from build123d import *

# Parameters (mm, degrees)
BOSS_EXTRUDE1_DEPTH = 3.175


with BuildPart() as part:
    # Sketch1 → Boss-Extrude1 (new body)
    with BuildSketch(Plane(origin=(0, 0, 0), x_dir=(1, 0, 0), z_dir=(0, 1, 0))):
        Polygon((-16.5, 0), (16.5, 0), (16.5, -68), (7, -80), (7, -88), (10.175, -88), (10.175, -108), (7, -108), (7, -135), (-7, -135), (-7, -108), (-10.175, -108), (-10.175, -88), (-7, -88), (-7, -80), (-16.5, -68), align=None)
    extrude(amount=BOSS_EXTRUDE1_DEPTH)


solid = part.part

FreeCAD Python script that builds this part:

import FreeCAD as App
import Part
import Sketcher
Q = App.Units.Quantity


def add_polygon(sketch, points):
    """Adds a closed chain of lines whose ends are joined by coincident constraints."""
    first, n = sketch.GeometryCount, len(points)
    for a, b in zip(points, points[1:] + points[:1]):
        sketch.addGeometry(Part.LineSegment(App.Vector(*a, 0), App.Vector(*b, 0)), False)
    for i in range(n):
        sketch.addConstraint(Sketcher.Constraint("Coincident", first + i, 2, first + (i + 1) % n, 1))

doc = App.newDocument("Part")
params = doc.addObject("Spreadsheet::Sheet", "Params")
for row, (alias, value) in enumerate([
    ("sketch1_width", "33 mm"),
    ("sketch1_width2", "14 mm"),
    ("sketch1_height", "68 mm"),
    ("sketch1_height2", "8 mm"),
    ("sketch1_height3", "20 mm"),
    ("pad1_length", "3.175 mm"),
], start=1):
    params.set(f"A{row}", alias)
    params.set(f"B{row}", "=" + value)
    params.setAlias(f"B{row}", alias)

body = doc.addObject("PartDesign::Body", "Body")

# Sketch on XZ plane
sketch1 = body.newObject("Sketcher::SketchObject", "Sketch")
sketch1.AttachmentSupport = (doc.getObject("XZ_Plane"), [""])
sketch1.MapMode = "FlatFace"
add_polygon(sketch1, [(16.5, 0), (-16.5, 0), (-16.5, 68), (-7, 80), (-7, 88), (-10.175, 88), (-10.175, 108), (-7, 108), (-7, 135), (7, 135), (7, 108), (10.175, 108), (10.175, 88), (7, 88), (7, 80), (16.5, 68)])  # lines 0-15
sketch1.addConstraint([
    Sketcher.Constraint("Horizontal", 0),
    Sketcher.Constraint("Vertical", 1),
    Sketcher.Constraint("Vertical", 3),
    Sketcher.Constraint("Horizontal", 4),
    Sketcher.Constraint("Vertical", 5),
    Sketcher.Constraint("Horizontal", 6),
    Sketcher.Constraint("Vertical", 7),
    Sketcher.Constraint("Horizontal", 8),
    Sketcher.Constraint("Vertical", 9),
    Sketcher.Constraint("Horizontal", 10),
    Sketcher.Constraint("Vertical", 11),
    Sketcher.Constraint("Horizontal", 12),
    Sketcher.Constraint("Vertical", 13),
    Sketcher.Constraint("Vertical", 15),
    Sketcher.Constraint("Symmetric", 0, 2, 15, 2, -1, 1),
    Sketcher.Constraint("Symmetric", 6, 2, 9, 2, -2),
    Sketcher.Constraint("Symmetric", 4, 2, 11, 2, -2),
    Sketcher.Constraint("Symmetric", 2, 2, 13, 2, -2),
    Sketcher.Constraint("Horizontal", 1, 2, 14, 2),
    Sketcher.Constraint("Vertical", 3, 2, 6, 2),
    Sketcher.Constraint("DistanceX", 0, 2, 0, 1, Q("33 mm")),
    Sketcher.Constraint("DistanceX", 8, 1, 8, 2, Q("14 mm")),
    Sketcher.Constraint("DistanceY", 1, 1, 1, 2, Q("68 mm")),
    Sketcher.Constraint("DistanceY", 3, 1, 3, 2, Q("8 mm")),
    Sketcher.Constraint("DistanceY", 5, 1, 5, 2, Q("20 mm")),
    Sketcher.Constraint("DistanceY", 7, 1, 7, 2, Q("27 mm")),
    Sketcher.Constraint("DistanceY", -1, 1, 2, 2, Q("80 mm")),
    Sketcher.Constraint("DistanceX", 4, 2, 4, 1, Q("3.175 mm")),
])
sketch1.setExpression("Constraints[36]", "Params.sketch1_width")
sketch1.setExpression("Constraints[37]", "Params.sketch1_width2")
sketch1.setExpression("Constraints[38]", "Params.sketch1_height")
sketch1.setExpression("Constraints[39]", "Params.sketch1_height2")
sketch1.setExpression("Constraints[40]", "Params.sketch1_height3")
pad1 = body.newObject("PartDesign::Pad", "Pad")
pad1.Profile = sketch1
pad1.setExpression("Length", "Params.pad1_length")
pad1.Reversed = True

doc.recompute()
